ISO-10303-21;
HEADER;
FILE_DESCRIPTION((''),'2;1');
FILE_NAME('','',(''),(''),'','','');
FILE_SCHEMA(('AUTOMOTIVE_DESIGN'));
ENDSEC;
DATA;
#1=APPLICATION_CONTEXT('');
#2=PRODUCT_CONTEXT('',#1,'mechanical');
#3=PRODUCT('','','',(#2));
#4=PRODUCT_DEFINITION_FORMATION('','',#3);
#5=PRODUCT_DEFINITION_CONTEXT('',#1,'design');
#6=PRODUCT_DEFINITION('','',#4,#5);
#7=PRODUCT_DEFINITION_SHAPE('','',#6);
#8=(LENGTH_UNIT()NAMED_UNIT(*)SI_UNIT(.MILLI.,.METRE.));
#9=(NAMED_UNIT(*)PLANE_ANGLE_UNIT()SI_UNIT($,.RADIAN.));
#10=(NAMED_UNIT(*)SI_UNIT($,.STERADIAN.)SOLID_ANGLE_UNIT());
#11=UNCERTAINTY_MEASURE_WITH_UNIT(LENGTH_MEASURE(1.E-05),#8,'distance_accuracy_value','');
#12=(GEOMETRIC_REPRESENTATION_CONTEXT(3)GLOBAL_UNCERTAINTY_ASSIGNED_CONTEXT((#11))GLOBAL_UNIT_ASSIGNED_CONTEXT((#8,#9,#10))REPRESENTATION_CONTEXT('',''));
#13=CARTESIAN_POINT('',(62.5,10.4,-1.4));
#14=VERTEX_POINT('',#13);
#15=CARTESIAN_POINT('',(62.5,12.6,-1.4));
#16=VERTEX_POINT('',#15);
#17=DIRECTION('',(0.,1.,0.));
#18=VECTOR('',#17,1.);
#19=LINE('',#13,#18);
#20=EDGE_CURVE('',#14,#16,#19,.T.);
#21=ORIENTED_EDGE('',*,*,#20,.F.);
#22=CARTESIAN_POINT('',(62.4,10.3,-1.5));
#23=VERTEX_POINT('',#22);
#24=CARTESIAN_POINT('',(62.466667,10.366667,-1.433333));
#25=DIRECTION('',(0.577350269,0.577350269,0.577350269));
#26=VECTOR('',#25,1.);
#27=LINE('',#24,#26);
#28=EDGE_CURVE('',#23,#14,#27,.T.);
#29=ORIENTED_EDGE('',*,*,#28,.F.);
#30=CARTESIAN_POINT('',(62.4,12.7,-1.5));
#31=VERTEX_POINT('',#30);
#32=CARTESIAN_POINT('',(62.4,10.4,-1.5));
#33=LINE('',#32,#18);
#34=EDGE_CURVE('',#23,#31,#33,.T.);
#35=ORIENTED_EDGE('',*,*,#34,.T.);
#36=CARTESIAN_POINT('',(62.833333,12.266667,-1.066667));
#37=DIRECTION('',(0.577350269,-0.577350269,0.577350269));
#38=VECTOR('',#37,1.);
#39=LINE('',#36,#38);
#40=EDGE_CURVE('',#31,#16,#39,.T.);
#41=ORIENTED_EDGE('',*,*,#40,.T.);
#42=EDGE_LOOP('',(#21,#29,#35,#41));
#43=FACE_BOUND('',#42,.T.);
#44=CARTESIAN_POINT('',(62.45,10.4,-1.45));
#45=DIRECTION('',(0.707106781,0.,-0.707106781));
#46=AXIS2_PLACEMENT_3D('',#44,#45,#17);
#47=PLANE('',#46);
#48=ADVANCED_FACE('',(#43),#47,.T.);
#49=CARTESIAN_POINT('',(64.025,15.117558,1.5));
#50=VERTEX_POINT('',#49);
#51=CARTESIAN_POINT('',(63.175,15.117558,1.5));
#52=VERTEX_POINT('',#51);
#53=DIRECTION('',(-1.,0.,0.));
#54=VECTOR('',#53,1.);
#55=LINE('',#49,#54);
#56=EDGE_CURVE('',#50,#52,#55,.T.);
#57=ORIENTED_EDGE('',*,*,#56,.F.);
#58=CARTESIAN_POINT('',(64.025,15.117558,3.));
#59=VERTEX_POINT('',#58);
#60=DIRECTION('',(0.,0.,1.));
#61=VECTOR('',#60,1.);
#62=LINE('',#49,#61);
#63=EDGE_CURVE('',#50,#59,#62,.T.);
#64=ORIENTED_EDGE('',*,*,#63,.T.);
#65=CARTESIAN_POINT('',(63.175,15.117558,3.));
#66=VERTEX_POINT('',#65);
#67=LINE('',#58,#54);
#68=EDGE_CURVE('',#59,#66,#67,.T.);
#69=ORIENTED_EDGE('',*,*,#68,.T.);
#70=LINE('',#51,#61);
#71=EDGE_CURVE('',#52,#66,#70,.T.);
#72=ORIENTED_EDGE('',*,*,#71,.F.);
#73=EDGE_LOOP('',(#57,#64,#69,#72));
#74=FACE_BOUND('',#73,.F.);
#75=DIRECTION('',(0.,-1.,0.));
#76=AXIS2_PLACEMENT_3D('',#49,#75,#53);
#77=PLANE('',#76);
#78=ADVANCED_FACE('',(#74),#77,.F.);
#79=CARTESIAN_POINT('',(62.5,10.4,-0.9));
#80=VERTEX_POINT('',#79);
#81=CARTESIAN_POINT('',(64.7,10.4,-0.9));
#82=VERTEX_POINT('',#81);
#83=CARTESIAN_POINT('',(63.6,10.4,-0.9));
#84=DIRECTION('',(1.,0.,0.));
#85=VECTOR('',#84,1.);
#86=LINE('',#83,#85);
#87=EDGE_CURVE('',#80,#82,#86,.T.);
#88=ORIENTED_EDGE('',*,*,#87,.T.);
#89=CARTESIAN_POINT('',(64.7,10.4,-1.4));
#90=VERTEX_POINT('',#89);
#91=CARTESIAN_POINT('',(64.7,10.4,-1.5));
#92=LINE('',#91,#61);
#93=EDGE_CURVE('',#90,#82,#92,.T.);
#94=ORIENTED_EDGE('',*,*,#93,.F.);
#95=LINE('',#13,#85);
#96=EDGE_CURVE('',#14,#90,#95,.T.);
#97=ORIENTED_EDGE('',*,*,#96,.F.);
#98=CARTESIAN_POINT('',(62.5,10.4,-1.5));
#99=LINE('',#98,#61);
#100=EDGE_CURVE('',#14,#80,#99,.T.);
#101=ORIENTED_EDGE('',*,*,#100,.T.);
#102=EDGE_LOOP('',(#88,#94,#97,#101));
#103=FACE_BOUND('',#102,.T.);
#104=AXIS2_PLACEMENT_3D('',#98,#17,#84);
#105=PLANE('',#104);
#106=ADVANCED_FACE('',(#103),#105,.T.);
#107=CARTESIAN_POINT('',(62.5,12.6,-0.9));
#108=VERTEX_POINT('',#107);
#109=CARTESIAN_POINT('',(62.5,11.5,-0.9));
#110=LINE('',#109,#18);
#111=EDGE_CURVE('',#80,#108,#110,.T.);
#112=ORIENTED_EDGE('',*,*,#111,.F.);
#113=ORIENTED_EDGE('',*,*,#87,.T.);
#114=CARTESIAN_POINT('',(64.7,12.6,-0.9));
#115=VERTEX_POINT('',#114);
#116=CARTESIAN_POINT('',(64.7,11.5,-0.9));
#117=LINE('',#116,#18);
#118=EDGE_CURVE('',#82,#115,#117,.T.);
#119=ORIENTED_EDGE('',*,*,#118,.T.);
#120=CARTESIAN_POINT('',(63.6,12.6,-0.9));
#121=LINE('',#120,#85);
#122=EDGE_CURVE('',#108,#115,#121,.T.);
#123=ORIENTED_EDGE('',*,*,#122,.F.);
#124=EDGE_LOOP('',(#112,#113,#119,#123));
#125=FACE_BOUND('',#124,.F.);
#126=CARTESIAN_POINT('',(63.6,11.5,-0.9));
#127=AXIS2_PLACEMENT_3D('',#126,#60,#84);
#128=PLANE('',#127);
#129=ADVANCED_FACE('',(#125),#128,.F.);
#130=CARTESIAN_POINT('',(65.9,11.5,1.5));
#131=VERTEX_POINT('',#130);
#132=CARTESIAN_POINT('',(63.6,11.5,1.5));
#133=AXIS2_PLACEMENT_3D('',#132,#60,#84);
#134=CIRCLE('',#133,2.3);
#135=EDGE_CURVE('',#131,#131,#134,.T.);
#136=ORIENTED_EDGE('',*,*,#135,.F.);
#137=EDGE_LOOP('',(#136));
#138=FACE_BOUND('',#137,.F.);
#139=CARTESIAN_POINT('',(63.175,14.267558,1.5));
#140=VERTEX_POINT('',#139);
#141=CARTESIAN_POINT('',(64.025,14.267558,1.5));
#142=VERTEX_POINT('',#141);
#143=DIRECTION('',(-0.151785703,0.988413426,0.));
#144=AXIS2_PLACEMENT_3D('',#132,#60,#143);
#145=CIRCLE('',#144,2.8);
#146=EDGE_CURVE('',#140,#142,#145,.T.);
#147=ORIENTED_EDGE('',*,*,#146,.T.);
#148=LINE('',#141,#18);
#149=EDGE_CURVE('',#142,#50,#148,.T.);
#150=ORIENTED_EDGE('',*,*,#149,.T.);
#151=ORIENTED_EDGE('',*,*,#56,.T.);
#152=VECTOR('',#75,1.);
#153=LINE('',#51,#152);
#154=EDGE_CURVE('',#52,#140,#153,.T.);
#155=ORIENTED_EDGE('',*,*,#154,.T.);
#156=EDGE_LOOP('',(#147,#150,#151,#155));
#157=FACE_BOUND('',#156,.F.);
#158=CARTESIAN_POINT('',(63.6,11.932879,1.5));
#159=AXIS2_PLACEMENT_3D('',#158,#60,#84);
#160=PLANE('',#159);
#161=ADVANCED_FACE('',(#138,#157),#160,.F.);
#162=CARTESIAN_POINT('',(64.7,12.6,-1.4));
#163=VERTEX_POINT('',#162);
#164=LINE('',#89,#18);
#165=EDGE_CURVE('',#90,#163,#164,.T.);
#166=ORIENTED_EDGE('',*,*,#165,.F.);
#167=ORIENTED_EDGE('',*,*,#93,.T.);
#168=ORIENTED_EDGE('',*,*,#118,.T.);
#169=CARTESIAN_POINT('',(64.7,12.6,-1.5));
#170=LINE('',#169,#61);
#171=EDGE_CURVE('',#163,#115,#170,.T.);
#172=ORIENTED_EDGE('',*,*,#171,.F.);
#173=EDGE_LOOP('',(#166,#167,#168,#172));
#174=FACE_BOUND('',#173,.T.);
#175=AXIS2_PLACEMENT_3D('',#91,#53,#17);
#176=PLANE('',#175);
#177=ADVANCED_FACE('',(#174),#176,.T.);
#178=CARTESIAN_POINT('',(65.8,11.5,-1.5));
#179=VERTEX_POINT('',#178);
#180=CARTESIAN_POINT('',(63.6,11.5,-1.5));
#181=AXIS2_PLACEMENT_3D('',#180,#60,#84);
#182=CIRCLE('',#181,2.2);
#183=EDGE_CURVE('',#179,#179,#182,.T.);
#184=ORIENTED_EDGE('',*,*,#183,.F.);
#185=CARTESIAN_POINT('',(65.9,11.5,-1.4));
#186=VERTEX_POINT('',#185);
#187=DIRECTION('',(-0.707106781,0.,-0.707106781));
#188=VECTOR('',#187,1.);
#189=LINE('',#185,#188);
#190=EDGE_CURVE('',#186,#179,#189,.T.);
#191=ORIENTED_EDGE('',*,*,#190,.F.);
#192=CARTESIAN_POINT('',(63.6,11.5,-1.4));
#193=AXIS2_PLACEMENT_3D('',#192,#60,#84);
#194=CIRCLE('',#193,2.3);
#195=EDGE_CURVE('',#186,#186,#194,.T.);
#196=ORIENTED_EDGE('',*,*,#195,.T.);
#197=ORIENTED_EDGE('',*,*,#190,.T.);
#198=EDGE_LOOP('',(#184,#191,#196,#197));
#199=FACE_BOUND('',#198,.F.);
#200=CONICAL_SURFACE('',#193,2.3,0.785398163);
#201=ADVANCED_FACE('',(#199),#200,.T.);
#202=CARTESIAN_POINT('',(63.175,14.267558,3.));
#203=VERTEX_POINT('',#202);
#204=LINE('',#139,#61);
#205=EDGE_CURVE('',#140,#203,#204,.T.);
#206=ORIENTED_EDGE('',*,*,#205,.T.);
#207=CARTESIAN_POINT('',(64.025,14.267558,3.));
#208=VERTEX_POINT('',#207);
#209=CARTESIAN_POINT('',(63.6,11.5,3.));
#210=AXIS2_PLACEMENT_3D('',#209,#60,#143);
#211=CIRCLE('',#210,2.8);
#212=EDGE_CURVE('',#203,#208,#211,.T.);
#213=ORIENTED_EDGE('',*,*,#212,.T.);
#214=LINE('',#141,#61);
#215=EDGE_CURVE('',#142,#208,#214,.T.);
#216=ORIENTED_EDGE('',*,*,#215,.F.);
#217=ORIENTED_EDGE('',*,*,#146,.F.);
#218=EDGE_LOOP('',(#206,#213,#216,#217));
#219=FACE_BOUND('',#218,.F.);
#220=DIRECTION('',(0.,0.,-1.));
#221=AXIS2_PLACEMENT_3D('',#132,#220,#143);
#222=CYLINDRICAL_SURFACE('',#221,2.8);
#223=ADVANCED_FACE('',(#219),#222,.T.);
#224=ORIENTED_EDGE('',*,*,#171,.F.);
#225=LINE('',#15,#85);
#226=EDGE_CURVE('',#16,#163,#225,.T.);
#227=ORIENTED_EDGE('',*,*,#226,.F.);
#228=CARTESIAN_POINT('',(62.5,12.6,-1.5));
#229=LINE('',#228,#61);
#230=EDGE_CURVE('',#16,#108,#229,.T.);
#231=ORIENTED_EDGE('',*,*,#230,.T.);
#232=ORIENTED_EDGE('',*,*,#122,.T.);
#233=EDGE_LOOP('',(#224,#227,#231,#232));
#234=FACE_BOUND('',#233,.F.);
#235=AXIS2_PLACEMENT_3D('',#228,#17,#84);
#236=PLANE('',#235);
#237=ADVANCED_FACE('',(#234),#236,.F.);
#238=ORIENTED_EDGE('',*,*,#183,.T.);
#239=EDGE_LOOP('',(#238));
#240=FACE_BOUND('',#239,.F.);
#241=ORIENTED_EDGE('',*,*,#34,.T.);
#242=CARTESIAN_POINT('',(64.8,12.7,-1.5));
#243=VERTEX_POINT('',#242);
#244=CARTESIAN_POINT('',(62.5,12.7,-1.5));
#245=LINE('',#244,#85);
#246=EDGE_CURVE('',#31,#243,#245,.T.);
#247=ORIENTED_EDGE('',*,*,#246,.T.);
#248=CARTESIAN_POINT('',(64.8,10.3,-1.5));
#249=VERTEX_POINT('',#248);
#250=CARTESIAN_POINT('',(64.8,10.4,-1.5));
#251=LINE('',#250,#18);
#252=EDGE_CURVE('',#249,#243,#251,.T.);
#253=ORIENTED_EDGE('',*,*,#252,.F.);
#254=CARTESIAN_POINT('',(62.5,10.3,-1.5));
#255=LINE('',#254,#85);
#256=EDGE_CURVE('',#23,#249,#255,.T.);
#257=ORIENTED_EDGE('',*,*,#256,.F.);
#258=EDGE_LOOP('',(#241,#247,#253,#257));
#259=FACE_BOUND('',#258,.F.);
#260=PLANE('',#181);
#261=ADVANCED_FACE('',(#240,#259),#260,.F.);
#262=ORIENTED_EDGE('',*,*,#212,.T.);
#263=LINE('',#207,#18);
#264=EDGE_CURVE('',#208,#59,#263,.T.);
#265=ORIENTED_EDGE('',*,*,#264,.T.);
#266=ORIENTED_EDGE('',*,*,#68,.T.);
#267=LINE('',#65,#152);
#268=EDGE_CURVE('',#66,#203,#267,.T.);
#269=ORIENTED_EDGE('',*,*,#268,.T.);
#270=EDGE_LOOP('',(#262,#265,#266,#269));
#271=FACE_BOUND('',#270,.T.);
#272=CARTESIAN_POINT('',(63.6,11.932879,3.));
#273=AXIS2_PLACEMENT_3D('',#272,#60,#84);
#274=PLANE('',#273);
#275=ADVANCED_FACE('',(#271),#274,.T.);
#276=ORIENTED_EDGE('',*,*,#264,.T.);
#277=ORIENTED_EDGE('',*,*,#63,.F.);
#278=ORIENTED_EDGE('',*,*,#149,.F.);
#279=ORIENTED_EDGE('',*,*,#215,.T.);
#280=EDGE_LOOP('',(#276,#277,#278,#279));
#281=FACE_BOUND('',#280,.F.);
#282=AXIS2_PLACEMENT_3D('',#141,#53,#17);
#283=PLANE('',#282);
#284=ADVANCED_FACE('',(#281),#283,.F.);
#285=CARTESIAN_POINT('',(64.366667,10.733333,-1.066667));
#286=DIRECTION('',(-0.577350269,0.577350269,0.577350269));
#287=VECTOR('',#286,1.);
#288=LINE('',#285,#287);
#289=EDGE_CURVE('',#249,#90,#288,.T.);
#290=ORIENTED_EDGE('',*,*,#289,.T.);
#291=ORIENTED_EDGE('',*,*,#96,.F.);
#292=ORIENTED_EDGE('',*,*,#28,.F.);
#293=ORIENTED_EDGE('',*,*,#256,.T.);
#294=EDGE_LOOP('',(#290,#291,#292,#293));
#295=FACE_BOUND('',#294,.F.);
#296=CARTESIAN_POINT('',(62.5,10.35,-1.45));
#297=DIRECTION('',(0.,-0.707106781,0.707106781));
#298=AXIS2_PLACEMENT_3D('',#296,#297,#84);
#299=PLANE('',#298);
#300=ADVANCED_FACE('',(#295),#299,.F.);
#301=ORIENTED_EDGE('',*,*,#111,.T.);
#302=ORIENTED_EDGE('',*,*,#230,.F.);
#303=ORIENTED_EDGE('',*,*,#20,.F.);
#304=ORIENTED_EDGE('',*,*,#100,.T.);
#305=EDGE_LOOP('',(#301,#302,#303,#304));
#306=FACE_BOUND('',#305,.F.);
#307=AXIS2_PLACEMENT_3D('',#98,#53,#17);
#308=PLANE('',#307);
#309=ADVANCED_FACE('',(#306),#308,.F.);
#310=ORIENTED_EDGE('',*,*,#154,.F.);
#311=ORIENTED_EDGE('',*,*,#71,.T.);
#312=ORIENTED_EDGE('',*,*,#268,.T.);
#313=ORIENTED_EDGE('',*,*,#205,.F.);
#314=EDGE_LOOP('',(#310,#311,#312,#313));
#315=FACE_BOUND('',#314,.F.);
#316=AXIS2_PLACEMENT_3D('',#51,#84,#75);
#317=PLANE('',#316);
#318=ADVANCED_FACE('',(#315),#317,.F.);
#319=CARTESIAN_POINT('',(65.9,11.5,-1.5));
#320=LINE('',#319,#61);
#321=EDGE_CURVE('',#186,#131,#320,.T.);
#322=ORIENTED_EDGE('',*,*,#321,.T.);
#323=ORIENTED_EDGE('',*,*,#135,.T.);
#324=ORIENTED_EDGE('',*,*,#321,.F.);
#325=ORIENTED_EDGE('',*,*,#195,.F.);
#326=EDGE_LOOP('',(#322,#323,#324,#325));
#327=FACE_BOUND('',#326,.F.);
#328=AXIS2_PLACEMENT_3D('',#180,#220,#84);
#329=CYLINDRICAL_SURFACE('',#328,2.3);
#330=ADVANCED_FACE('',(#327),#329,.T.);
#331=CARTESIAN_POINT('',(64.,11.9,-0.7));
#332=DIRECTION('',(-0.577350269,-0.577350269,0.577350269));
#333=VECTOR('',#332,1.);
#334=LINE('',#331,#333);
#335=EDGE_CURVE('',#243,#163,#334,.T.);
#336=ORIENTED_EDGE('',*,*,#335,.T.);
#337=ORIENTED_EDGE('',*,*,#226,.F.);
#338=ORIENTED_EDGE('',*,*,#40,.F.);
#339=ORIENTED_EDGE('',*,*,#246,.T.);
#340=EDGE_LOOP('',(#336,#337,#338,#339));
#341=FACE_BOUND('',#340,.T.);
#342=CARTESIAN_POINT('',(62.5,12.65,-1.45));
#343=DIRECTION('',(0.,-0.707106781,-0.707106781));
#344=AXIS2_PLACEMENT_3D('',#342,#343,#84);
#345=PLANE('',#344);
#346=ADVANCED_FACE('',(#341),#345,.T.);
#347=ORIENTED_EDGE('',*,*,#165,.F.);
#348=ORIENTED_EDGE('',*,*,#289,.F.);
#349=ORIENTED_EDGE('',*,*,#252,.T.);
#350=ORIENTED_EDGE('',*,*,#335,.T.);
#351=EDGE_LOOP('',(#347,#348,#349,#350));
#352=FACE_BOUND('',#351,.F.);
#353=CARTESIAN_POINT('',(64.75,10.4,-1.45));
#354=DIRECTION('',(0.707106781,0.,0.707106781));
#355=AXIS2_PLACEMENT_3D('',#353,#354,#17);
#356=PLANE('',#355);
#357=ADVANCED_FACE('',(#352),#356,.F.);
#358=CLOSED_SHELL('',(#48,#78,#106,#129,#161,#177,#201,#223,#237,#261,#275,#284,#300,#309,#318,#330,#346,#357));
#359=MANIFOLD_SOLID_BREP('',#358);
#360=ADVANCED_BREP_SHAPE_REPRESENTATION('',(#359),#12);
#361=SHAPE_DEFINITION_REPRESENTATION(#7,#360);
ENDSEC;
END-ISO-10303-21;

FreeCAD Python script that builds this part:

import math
import FreeCAD as App
import Part
import Sketcher
from FreeCAD import Vector
Q = App.Units.Quantity


def edges_at(feature, points):
    """Names of the edges that pass closest to the given points."""
    edges = feature.Shape.Edges
    near = lambda p: min(range(len(edges)), key=lambda i: edges[i].distToShape(Part.Vertex(*p))[0])
    return sorted({f"Edge{near(p) + 1}" for p in points})

doc = App.newDocument("Part")
body = doc.addObject("PartDesign::Body", "Body")

# Sketch on XY plane
sketch1 = doc.addObject("Sketcher::SketchObject", "Sketch")
body.addObject(sketch1)
sketch1.AttachmentSupport = (doc.XY_Plane, [""])
sketch1.MapMode = "FlatFace"
sketch1.addGeometry(Part.Circle(Vector(0, 0, 0), Vector(0, 0, 1), 2.3), False)
sketch1.addConstraint([
    Sketcher.Constraint("Coincident", 0, 3, -1, 1),
    Sketcher.Constraint("Diameter", 0, Q("4.6 mm")),
])
pad1 = doc.addObject("PartDesign::Pad", "Pad")
body.addObject(pad1)
pad1.Profile = sketch1
pad1.Length = 3

# Sketch on XY plane
sketch2 = doc.addObject("Sketcher::SketchObject", "Sketch001")
body.addObject(sketch2)
sketch2.AttachmentSupport = (doc.XY_Plane, [""])
sketch2.MapMode = "FlatFace"
sketch2.AttachmentOffset = App.Placement(Vector(0, 0, 3), App.Rotation())
sketch2.addGeometry([
    Part.LineSegment(Vector(0.4, 2.8, 0), Vector(0.4, 3.6, 0)),
    Part.LineSegment(Vector(0.4, 3.6, 0), Vector(-0.4, 3.6, 0)),
    Part.LineSegment(Vector(-0.4, 3.6, 0), Vector(-0.4, 2.8, 0)),
    Part.ArcOfCircle(Part.Circle(Vector(0, 0, 0), Vector(0, 0, 1), 2.8), math.radians(99), math.radians(441)),
], False)
sketch2.addConstraint([
    Sketcher.Constraint("Coincident", 0, 2, 1, 1),
    Sketcher.Constraint("Coincident", 1, 2, 2, 1),
    Sketcher.Constraint("Coincident", 2, 2, 3, 1),
    Sketcher.Constraint("Coincident", 3, 2, 0, 1),
    Sketcher.Constraint("Vertical", 0),
    Sketcher.Constraint("Horizontal", 1),
    Sketcher.Constraint("Vertical", 2),
    Sketcher.Constraint("Coincident", 3, 3, -1, 1),
    Sketcher.Constraint("Horizontal", 2, 2, 3, 2),
    Sketcher.Constraint("Equal", 1, 0),
    Sketcher.Constraint("Radius", 3, Q("2.8 mm")),
    Sketcher.Constraint("DistanceX", 1, 2, 1, 1, Q("0.85 mm")),
])
pad2 = doc.addObject("PartDesign::Pad", "Pad001")
body.addObject(pad2)
pad2.Profile = sketch2
pad2.Length = 1.5

# Sketch on XY plane
sketch3 = doc.addObject("Sketcher::SketchObject", "Sketch002")
body.addObject(sketch3)
sketch3.AttachmentSupport = (doc.XY_Plane, [""])
sketch3.MapMode = "FlatFace"
sketch3.addGeometry([
    Part.LineSegment(Vector(-1.1, 1.1, 0), Vector(-1.1, -1.1, 0)),
    Part.LineSegment(Vector(-1.1, -1.1, 0), Vector(1.1, -1.1, 0)),
    Part.LineSegment(Vector(1.1, -1.1, 0), Vector(1.1, 1.1, 0)),
    Part.LineSegment(Vector(1.1, 1.1, 0), Vector(-1.1, 1.1, 0)),
], False)
sketch3.addConstraint([
    Sketcher.Constraint("Coincident", 0, 2, 1, 1),
    Sketcher.Constraint("Coincident", 1, 2, 2, 1),
    Sketcher.Constraint("Coincident", 2, 2, 3, 1),
    Sketcher.Constraint("Coincident", 3, 2, 0, 1),
    Sketcher.Constraint("Vertical", 0),
    Sketcher.Constraint("Horizontal", 1),
    Sketcher.Constraint("Vertical", 2),
    Sketcher.Constraint("Horizontal", 3),
    Sketcher.Constraint("Symmetric", 0, 2, 2, 2, -1, 1),
    Sketcher.Constraint("Equal", 3, 0),
    Sketcher.Constraint("DistanceX", 1, 1, 1, 2, Q("2.2 mm")),
])
pocket1 = doc.addObject("PartDesign::Pocket", "Pocket")
body.addObject(pocket1)
pocket1.Profile = sketch3
pocket1.Length = 0.6
pocket1.Reversed = True
doc.recompute()

chamfer = doc.addObject("PartDesign::Chamfer", "Chamfer")
body.addObject(chamfer)
chamfer.Base = (pocket1, edges_at(pocket1, [
    (0, 1.1, 0),
    (0, -1.1, 0),
    (1.1, 0, 0),
    (-2.3, 0, 0),
    (-1.1, 0, 0),
]))
chamfer.Size = 0.1
body2 = doc.addObject("PartDesign::Body", "Body001")
doc.recompute()

body.Placement = App.Placement(Vector(63.6, 11.5, -1.5), App.Rotation(Vector(0, 0, 1), 0))
boolean = doc.addObject("PartDesign::Boolean", "Boolean")
body2.addObject(boolean)
boolean.Type = "Fuse"
boolean.addObjects([body])

doc.recompute()
